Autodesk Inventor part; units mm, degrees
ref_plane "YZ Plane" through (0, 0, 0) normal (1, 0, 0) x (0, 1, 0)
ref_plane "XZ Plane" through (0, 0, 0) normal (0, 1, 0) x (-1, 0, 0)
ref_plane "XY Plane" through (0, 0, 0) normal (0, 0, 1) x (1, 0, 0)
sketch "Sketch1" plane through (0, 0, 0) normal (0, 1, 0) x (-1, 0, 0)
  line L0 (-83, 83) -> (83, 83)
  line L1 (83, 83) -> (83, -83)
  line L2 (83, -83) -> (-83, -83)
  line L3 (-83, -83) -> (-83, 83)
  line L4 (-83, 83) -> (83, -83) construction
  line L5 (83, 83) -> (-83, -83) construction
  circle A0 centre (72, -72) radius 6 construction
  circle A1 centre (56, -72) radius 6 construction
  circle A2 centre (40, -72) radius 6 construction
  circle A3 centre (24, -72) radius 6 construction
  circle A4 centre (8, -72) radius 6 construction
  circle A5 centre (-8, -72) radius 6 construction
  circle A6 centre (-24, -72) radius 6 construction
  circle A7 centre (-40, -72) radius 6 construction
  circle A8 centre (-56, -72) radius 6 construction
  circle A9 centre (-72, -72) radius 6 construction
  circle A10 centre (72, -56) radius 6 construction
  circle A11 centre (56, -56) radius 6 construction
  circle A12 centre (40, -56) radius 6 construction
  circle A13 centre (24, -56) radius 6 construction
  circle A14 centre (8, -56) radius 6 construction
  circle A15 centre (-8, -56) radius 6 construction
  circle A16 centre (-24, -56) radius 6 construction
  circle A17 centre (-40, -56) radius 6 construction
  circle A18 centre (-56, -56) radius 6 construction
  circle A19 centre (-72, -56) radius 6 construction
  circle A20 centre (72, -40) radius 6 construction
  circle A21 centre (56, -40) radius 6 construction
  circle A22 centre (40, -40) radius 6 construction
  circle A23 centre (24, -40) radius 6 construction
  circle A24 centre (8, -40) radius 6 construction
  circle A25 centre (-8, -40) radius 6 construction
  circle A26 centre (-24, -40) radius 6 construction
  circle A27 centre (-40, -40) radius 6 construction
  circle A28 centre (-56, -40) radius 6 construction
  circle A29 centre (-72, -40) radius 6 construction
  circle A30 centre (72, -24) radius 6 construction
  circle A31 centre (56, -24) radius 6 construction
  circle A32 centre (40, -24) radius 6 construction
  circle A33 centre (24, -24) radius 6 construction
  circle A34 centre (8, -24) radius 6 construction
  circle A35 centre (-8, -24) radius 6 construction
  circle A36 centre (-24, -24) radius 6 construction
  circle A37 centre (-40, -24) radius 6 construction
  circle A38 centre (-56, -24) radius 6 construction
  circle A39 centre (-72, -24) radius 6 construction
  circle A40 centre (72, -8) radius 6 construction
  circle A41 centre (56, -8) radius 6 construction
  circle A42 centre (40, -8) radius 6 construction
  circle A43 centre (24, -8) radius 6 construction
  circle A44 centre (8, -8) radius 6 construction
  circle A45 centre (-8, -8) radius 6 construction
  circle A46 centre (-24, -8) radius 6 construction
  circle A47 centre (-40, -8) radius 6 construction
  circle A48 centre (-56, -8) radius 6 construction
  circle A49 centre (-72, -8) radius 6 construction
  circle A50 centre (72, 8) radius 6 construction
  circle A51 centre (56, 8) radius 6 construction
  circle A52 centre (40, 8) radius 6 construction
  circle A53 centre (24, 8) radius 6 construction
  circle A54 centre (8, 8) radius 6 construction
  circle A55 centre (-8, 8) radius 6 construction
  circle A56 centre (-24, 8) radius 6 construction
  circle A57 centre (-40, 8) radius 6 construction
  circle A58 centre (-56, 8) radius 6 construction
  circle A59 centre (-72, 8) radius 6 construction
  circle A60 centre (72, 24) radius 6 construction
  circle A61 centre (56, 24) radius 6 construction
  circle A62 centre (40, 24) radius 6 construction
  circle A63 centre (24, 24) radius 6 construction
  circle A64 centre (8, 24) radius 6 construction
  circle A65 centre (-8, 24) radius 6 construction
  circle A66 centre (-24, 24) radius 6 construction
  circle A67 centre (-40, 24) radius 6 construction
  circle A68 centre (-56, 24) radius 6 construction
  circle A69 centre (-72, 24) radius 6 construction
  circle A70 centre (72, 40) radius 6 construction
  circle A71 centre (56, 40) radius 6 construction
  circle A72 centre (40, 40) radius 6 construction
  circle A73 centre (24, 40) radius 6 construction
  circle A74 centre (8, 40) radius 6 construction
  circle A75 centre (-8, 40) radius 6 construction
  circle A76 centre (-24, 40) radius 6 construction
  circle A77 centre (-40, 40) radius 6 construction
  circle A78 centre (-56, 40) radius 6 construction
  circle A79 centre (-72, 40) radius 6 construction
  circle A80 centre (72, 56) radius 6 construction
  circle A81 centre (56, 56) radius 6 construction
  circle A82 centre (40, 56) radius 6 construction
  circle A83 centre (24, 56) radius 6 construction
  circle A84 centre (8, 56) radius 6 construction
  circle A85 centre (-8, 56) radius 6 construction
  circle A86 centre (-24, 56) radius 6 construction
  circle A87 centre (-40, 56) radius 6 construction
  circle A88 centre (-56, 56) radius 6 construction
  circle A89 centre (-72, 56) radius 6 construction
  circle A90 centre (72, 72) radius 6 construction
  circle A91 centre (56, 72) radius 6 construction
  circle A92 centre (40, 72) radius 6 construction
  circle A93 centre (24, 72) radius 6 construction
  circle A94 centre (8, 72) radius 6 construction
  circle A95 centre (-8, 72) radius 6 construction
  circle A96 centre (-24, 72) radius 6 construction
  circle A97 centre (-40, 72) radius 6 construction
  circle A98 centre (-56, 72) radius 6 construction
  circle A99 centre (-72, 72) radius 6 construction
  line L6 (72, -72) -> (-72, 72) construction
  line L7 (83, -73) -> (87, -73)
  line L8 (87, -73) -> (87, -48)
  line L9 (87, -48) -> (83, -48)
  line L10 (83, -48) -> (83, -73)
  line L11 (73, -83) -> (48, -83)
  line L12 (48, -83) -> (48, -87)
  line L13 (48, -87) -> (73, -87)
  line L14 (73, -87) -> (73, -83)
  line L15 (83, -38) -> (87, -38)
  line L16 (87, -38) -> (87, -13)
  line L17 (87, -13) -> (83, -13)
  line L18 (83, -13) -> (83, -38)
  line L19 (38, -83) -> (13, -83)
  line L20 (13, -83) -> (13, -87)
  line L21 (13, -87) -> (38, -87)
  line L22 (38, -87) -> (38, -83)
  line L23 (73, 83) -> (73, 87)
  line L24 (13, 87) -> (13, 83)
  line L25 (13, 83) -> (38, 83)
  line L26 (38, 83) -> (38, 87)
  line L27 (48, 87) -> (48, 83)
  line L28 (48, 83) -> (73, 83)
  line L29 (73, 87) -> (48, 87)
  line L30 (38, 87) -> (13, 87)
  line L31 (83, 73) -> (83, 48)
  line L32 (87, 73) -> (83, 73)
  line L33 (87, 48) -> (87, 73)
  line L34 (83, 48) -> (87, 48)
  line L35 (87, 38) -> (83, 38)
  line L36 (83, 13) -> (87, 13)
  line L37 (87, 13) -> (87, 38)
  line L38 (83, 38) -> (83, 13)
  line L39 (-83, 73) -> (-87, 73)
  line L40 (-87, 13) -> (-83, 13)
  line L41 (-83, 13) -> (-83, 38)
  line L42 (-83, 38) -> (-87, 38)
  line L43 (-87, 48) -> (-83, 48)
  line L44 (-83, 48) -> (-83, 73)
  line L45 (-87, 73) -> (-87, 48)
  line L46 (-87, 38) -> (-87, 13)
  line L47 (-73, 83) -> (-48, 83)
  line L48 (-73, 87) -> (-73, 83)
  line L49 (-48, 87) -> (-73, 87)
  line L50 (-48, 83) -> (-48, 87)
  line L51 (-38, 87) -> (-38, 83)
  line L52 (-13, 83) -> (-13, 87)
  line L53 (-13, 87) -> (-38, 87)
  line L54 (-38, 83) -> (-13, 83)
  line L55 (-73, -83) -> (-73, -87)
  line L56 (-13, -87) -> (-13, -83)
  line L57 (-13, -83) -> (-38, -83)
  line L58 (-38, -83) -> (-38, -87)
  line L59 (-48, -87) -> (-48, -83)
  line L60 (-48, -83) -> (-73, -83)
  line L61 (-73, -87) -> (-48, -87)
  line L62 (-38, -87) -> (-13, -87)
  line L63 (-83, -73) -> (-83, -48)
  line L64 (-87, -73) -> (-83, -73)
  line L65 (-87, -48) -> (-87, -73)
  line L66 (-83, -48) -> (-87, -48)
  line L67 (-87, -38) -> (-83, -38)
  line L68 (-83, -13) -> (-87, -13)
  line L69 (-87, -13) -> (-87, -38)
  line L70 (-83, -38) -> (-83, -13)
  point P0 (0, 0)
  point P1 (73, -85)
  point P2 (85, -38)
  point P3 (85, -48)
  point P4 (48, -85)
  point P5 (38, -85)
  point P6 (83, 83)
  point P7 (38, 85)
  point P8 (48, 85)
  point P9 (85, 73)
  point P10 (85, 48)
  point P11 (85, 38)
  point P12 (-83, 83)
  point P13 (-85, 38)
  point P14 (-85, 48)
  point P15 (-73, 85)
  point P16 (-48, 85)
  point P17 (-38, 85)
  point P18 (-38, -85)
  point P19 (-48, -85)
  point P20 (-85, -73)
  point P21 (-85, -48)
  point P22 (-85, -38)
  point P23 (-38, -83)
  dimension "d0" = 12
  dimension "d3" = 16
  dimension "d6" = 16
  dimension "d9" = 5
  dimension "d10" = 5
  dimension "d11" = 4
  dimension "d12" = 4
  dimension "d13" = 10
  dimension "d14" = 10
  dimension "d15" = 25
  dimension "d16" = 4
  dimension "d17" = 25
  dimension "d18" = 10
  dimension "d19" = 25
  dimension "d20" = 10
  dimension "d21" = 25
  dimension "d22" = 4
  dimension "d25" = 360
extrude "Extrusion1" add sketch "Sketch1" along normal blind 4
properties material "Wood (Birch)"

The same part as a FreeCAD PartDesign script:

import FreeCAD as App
import Part
import Sketcher


def add_polygon(sketch, points):
    """Adds a closed chain of lines whose ends are joined by coincident constraints."""
    first, n = sketch.GeometryCount, len(points)
    for a, b in zip(points, points[1:] + points[:1]):
        sketch.addGeometry(Part.LineSegment(App.Vector(*a, 0), App.Vector(*b, 0)), False)
    for i in range(n):
        sketch.addConstraint(Sketcher.Constraint("Coincident", first + i, 2, first + (i + 1) % n, 1))

doc = App.newDocument("Part")
body = doc.addObject("PartDesign::Body", "Body")

# Sketch on XZ plane
sketch1 = body.newObject("Sketcher::SketchObject", "Sketch")
sketch1.AttachmentSupport = (doc.getObject("XZ_Plane"), [""])
sketch1.MapMode = "FlatFace"
add_polygon(sketch1, [(73, 83), (83, 83), (83, 73), (87, 73), (87, 48), (83, 48), (83, 38), (87, 38), (87, 13), (83, 13), (83, -13), (87, -13), (87, -38), (83, -38), (83, -48), (87, -48), (87, -73), (83, -73), (83, -83), (73, -83), (73, -87), (48, -87), (48, -83), (38, -83), (38, -87), (13, -87), (13, -83), (-13, -83), (-13, -87), (-38, -87), (-38, -83), (-48, -83), (-48, -87), (-73, -87), (-73, -83), (-83, -83), (-83, -73), (-87, -73), (-87, -48), (-83, -48), (-83, -38), (-87, -38), (-87, -13), (-83, -13), (-83, 13), (-87, 13), (-87, 38), (-83, 38), (-83, 48), (-87, 48), (-87, 73), (-83, 73), (-83, 83), (-73, 83), (-73, 87), (-48, 87), (-48, 83), (-38, 83), (-38, 87), (-13, 87), (-13, 83), (13, 83), (13, 87), (38, 87), (38, 83), (48, 83), (48, 87), (73, 87)])  # lines 0-67
sketch1.addConstraint(Sketcher.Constraint("Horizontal", 0))
sketch1.addConstraint(Sketcher.Constraint("Vertical", 1))
sketch1.addConstraint(Sketcher.Constraint("Horizontal", 2))
sketch1.addConstraint(Sketcher.Constraint("Vertical", 3))
sketch1.addConstraint(Sketcher.Constraint("Horizontal", 4))
sketch1.addConstraint(Sketcher.Constraint("Vertical", 5))
sketch1.addConstraint(Sketcher.Constraint("Horizontal", 6))
sketch1.addConstraint(Sketcher.Constraint("Vertical", 7))
sketch1.addConstraint(Sketcher.Constraint("Horizontal", 8))
sketch1.addConstraint(Sketcher.Constraint("Vertical", 9))
sketch1.addConstraint(Sketcher.Constraint("Horizontal", 10))
sketch1.addConstraint(Sketcher.Constraint("Vertical", 11))
sketch1.addConstraint(Sketcher.Constraint("Horizontal", 12))
sketch1.addConstraint(Sketcher.Constraint("Vertical", 13))
sketch1.addConstraint(Sketcher.Constraint("Horizontal", 14))
sketch1.addConstraint(Sketcher.Constraint("Vertical", 15))
sketch1.addConstraint(Sketcher.Constraint("Horizontal", 16))
sketch1.addConstraint(Sketcher.Constraint("Vertical", 17))
sketch1.addConstraint(Sketcher.Constraint("Horizontal", 18))
sketch1.addConstraint(Sketcher.Constraint("Vertical", 19))
sketch1.addConstraint(Sketcher.Constraint("Horizontal", 20))
sketch1.addConstraint(Sketcher.Constraint("Vertical", 21))
sketch1.addConstraint(Sketcher.Constraint("Horizontal", 22))
sketch1.addConstraint(Sketcher.Constraint("Vertical", 23))
sketch1.addConstraint(Sketcher.Constraint("Horizontal", 24))
sketch1.addConstraint(Sketcher.Constraint("Vertical", 25))
sketch1.addConstraint(Sketcher.Constraint("Horizontal", 26))
sketch1.addConstraint(Sketcher.Constraint("Vertical", 27))
sketch1.addConstraint(Sketcher.Constraint("Horizontal", 28))
sketch1.addConstraint(Sketcher.Constraint("Vertical", 29))
sketch1.addConstraint(Sketcher.Constraint("Horizontal", 30))
sketch1.addConstraint(Sketcher.Constraint("Vertical", 31))
sketch1.addConstraint(Sketcher.Constraint("Horizontal", 32))
sketch1.addConstraint(Sketcher.Constraint("Vertical", 33))
sketch1.addConstraint(Sketcher.Constraint("Horizontal", 34))
sketch1.addConstraint(Sketcher.Constraint("Vertical", 35))
sketch1.addConstraint(Sketcher.Constraint("Horizontal", 36))
sketch1.addConstraint(Sketcher.Constraint("Vertical", 37))
sketch1.addConstraint(Sketcher.Constraint("Horizontal", 38))
sketch1.addConstraint(Sketcher.Constraint("Vertical", 39))
sketch1.addConstraint(Sketcher.Constraint("Horizontal", 40))
sketch1.addConstraint(Sketcher.Constraint("Vertical", 41))
sketch1.addConstraint(Sketcher.Constraint("Horizontal", 42))
sketch1.addConstraint(Sketcher.Constraint("Vertical", 43))
sketch1.addConstraint(Sketcher.Constraint("Horizontal", 44))
sketch1.addConstraint(Sketcher.Constraint("Vertical", 45))
sketch1.addConstraint(Sketcher.Constraint("Horizontal", 46))
sketch1.addConstraint(Sketcher.Constraint("Vertical", 47))
sketch1.addConstraint(Sketcher.Constraint("Horizontal", 48))
sketch1.addConstraint(Sketcher.Constraint("Vertical", 49))
sketch1.addConstraint(Sketcher.Constraint("Horizontal", 50))
sketch1.addConstraint(Sketcher.Constraint("Vertical", 51))
sketch1.addConstraint(Sketcher.Constraint("Horizontal", 52))
sketch1.addConstraint(Sketcher.Constraint("Vertical", 53))
sketch1.addConstraint(Sketcher.Constraint("Horizontal", 54))
sketch1.addConstraint(Sketcher.Constraint("Vertical", 55))
sketch1.addConstraint(Sketcher.Constraint("Horizontal", 56))
sketch1.addConstraint(Sketcher.Constraint("Vertical", 57))
sketch1.addConstraint(Sketcher.Constraint("Horizontal", 58))
sketch1.addConstraint(Sketcher.Constraint("Vertical", 59))
sketch1.addConstraint(Sketcher.Constraint("Horizontal", 60))
sketch1.addConstraint(Sketcher.Constraint("Vertical", 61))
sketch1.addConstraint(Sketcher.Constraint("Horizontal", 62))
sketch1.addConstraint(Sketcher.Constraint("Vertical", 63))
sketch1.addConstraint(Sketcher.Constraint("Horizontal", 64))
sketch1.addConstraint(Sketcher.Constraint("Vertical", 65))
sketch1.addConstraint(Sketcher.Constraint("Horizontal", 66))
sketch1.addConstraint(Sketcher.Constraint("Vertical", 67))
sketch1.addConstraint(Sketcher.Constraint("Symmetric", 0, 2, 34, 2, -1, 1))
sketch1.addConstraint(Sketcher.Constraint("Symmetric", 2, 2, 36, 2, -1, 1))
sketch1.addConstraint(Sketcher.Constraint("Symmetric", 4, 2, 38, 2, -1, 1))
sketch1.addConstraint(Sketcher.Constraint("Symmetric", 6, 2, 40, 2, -1, 1))
sketch1.addConstraint(Sketcher.Constraint("Symmetric", 8, 2, 42, 2, -1, 1))
sketch1.addConstraint(Sketcher.Constraint("Symmetric", 10, 2, 44, 2, -1, 1))
sketch1.addConstraint(Sketcher.Constraint("Symmetric", 12, 2, 46, 2, -1, 1))
sketch1.addConstraint(Sketcher.Constraint("Symmetric", 14, 2, 48, 2, -1, 1))
sketch1.addConstraint(Sketcher.Constraint("Symmetric", 16, 2, 50, 2, -1, 1))
sketch1.addConstraint(Sketcher.Constraint("Symmetric", 18, 2, 52, 2, -1, 1))
sketch1.addConstraint(Sketcher.Constraint("Symmetric", 20, 2, 54, 2, -1, 1))
sketch1.addConstraint(Sketcher.Constraint("Symmetric", 22, 2, 56, 2, -1, 1))
sketch1.addConstraint(Sketcher.Constraint("Symmetric", 24, 2, 58, 2, -1, 1))
sketch1.addConstraint(Sketcher.Constraint("Symmetric", 26, 2, 60, 2, -1, 1))
sketch1.addConstraint(Sketcher.Constraint("Symmetric", 28, 2, 62, 2, -1, 1))
sketch1.addConstraint(Sketcher.Constraint("Symmetric", 30, 2, 64, 2, -1, 1))
sketch1.addConstraint(Sketcher.Constraint("Symmetric", 32, 2, 66, 2, -1, 1))
sketch1.addConstraint(Sketcher.Constraint("Symmetric", 24, 2, 27, 2, -2))
sketch1.addConstraint(Sketcher.Constraint("Symmetric", 22, 2, 29, 2, -2))
sketch1.addConstraint(Sketcher.Constraint("Symmetric", 20, 2, 31, 2, -2))
sketch1.addConstraint(Sketcher.Constraint("Symmetric", 18, 2, 33, 2, -2))
sketch1.addConstraint(Sketcher.Constraint("Symmetric", 16, 2, 35, 2, -2))
sketch1.addConstraint(Sketcher.Constraint("Symmetric", 14, 2, 37, 2, -2))
sketch1.addConstraint(Sketcher.Constraint("Symmetric", 12, 2, 39, 2, -2))
sketch1.addConstraint(Sketcher.Constraint("Symmetric", 10, 2, 41, 2, -2))
sketch1.addConstraint(Sketcher.Constraint("Horizontal", 18, 2, 21, 2))
sketch1.addConstraint(Sketcher.Constraint("Horizontal", 20, 2, 23, 2))
sketch1.addConstraint(Sketcher.Constraint("Horizontal", 22, 2, 25, 2))
sketch1.addConstraint(Sketcher.Constraint("Vertical", 1, 2, 4, 2))
sketch1.addConstraint(Sketcher.Constraint("Vertical", 3, 2, 6, 2))
sketch1.addConstraint(Sketcher.Constraint("Vertical", 5, 2, 8, 2))
sketch1.addConstraint(Sketcher.Constraint("Equal", 18, 22))
sketch1.addConstraint(Sketcher.Constraint("Equal", 20, 24))
sketch1.addConstraint(Sketcher.Constraint("Equal", 64, 1))
sketch1.addConstraint(Sketcher.Constraint("Equal", 66, 3))
sketch1.addConstraint(Sketcher.Constraint("Equal", 1, 5))
sketch1.addConstraint(Sketcher.Constraint("Equal", 3, 7))
sketch1.addConstraint(Sketcher.Constraint("Equal", 60, 9))
sketch1.addConstraint(Sketcher.Constraint("Equal", 50, 19))
sketch1.addConstraint(Sketcher.Constraint("DistanceX", 0, 1, 0, 2, 10.0))
sketch1.addConstraint(Sketcher.Constraint("DistanceX", 2, 1, 2, 2, 4.0))
sketch1.addConstraint(Sketcher.Constraint("DistanceX", 20, 2, 20, 1, 25.0))
sketch1.addConstraint(Sketcher.Constraint("DistanceX", 26, 2, 26, 1, 26.0))
pad1 = body.newObject("PartDesign::Pad", "Pad")
pad1.Profile = sketch1
pad1.Length = 4
pad1.Reversed = True

doc.recompute()
